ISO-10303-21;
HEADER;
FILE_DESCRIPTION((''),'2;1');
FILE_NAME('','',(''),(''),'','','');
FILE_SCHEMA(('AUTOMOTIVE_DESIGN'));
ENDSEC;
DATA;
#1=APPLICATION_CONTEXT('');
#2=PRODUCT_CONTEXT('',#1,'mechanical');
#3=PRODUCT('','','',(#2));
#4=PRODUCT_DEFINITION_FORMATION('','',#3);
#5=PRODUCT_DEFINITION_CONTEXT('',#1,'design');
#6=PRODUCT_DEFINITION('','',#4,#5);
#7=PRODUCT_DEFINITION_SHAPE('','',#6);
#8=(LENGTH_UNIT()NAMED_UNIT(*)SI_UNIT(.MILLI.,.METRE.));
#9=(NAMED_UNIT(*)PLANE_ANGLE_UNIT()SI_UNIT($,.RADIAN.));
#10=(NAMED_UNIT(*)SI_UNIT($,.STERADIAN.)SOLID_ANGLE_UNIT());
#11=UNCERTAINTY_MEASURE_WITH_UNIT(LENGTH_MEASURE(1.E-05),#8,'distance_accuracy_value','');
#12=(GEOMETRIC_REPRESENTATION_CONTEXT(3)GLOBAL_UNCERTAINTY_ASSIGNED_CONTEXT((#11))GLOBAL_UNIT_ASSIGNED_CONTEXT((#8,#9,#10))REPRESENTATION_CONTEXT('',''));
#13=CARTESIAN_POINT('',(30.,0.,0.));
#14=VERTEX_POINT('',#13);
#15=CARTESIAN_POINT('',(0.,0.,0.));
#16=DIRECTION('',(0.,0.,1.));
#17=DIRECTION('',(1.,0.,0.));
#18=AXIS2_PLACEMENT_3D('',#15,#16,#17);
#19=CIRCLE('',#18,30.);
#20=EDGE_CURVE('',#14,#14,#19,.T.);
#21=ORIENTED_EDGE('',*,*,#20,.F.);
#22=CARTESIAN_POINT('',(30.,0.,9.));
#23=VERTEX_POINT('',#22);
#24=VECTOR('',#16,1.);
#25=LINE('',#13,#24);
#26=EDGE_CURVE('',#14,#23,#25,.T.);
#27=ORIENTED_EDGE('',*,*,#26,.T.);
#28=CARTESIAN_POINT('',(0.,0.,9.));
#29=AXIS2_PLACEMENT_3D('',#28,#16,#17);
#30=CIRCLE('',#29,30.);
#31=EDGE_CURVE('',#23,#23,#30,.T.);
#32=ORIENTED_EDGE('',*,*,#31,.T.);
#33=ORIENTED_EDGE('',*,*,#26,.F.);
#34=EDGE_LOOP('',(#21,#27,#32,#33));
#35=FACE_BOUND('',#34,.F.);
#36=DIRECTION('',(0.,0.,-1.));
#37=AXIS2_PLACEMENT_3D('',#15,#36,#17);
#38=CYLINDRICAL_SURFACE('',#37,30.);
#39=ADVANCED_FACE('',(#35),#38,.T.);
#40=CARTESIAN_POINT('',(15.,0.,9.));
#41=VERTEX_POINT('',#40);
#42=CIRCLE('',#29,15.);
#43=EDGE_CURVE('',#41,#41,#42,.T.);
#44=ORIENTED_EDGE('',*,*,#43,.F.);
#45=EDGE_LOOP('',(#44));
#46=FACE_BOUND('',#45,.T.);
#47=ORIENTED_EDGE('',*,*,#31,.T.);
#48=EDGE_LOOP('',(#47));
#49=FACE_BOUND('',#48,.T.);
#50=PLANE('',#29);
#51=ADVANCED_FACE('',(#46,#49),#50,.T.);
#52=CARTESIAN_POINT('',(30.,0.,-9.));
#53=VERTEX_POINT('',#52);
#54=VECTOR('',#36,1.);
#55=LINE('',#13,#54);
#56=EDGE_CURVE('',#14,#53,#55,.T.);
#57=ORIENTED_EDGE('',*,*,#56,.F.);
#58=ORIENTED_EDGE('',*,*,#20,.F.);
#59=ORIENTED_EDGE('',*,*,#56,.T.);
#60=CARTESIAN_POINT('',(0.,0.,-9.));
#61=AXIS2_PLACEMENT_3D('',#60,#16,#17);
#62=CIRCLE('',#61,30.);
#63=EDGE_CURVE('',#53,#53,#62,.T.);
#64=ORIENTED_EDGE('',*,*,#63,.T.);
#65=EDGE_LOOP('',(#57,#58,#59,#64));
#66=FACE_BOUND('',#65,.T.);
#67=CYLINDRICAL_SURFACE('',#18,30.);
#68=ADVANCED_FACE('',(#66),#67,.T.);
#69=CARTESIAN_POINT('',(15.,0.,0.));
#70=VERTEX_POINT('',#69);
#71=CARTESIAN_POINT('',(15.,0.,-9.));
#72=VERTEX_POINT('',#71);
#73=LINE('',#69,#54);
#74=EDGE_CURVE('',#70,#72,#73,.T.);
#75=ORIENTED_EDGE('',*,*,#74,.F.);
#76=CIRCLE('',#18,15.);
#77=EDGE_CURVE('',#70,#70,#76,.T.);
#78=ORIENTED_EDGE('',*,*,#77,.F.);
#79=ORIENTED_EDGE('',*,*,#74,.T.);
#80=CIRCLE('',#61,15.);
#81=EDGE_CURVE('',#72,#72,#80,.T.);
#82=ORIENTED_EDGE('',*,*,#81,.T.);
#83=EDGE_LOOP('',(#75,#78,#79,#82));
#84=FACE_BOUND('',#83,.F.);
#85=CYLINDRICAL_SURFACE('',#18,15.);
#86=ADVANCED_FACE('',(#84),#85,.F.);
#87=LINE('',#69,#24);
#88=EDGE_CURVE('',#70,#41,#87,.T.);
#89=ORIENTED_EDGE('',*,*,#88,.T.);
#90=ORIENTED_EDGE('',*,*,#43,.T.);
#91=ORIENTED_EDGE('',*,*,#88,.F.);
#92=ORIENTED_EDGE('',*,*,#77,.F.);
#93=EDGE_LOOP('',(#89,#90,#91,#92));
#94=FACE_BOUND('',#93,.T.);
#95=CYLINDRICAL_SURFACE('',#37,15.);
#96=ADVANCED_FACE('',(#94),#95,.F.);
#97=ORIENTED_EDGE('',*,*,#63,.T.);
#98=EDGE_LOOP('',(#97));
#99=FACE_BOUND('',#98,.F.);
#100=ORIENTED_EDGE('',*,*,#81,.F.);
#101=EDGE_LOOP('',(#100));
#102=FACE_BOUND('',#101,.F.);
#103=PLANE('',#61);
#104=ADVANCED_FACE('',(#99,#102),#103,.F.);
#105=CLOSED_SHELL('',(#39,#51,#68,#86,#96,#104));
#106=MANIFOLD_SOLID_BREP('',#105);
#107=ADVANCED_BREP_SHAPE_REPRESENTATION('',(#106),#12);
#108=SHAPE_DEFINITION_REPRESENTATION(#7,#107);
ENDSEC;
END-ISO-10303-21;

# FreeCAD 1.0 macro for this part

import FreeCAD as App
import Part
import Sketcher

V = App.Vector
Q = App.Units.Quantity

doc = App.newDocument("Part")
params = doc.addObject("Spreadsheet::Sheet", "Params")
for row, (alias, value) in enumerate([
    ("sketch1_diameter", "60 mm"),
    ("sketch1_diameter2", "30 mm"),
    ("pad1_length", "9 mm"),
    ("pad1_length2", "9 mm"),
], start=1):
    params.set(f"A{row}", alias)
    params.set(f"B{row}", "=" + value)
    params.setAlias(f"B{row}", alias)

body = doc.addObject("PartDesign::Body", "Body")

# Sketch on XY plane
sketch1 = body.newObject("Sketcher::SketchObject", "Sketch")
sketch1.AttachmentSupport = (doc.getObject("XY_Plane"), [""])
sketch1.MapMode = "FlatFace"
sketch1.addGeometry([
    Part.Circle(V(0, 0, 0), V(0, 0, 1), 30),
    Part.Circle(V(0, 0, 0), V(0, 0, 1), 15),
], False)
sketch1.addConstraint([
    Sketcher.Constraint("Coincident", 0, 3, -1, 1),
    Sketcher.Constraint("Coincident", 1, 3, -1, 1),
    Sketcher.Constraint("Diameter", 0, Q("60 mm")),
    Sketcher.Constraint("Diameter", 1, Q("30 mm")),
])
sketch1.setExpression("Constraints[2]", "Params.sketch1_diameter")
sketch1.setExpression("Constraints[3]", "Params.sketch1_diameter2")
pad1 = body.newObject("PartDesign::Pad", "Pad")
pad1.Profile = sketch1
pad1.Type = "TwoLengths"
pad1.setExpression("Length", "Params.pad1_length")
pad1.setExpression("Length2", "Params.pad1_length2")

doc.recompute()
